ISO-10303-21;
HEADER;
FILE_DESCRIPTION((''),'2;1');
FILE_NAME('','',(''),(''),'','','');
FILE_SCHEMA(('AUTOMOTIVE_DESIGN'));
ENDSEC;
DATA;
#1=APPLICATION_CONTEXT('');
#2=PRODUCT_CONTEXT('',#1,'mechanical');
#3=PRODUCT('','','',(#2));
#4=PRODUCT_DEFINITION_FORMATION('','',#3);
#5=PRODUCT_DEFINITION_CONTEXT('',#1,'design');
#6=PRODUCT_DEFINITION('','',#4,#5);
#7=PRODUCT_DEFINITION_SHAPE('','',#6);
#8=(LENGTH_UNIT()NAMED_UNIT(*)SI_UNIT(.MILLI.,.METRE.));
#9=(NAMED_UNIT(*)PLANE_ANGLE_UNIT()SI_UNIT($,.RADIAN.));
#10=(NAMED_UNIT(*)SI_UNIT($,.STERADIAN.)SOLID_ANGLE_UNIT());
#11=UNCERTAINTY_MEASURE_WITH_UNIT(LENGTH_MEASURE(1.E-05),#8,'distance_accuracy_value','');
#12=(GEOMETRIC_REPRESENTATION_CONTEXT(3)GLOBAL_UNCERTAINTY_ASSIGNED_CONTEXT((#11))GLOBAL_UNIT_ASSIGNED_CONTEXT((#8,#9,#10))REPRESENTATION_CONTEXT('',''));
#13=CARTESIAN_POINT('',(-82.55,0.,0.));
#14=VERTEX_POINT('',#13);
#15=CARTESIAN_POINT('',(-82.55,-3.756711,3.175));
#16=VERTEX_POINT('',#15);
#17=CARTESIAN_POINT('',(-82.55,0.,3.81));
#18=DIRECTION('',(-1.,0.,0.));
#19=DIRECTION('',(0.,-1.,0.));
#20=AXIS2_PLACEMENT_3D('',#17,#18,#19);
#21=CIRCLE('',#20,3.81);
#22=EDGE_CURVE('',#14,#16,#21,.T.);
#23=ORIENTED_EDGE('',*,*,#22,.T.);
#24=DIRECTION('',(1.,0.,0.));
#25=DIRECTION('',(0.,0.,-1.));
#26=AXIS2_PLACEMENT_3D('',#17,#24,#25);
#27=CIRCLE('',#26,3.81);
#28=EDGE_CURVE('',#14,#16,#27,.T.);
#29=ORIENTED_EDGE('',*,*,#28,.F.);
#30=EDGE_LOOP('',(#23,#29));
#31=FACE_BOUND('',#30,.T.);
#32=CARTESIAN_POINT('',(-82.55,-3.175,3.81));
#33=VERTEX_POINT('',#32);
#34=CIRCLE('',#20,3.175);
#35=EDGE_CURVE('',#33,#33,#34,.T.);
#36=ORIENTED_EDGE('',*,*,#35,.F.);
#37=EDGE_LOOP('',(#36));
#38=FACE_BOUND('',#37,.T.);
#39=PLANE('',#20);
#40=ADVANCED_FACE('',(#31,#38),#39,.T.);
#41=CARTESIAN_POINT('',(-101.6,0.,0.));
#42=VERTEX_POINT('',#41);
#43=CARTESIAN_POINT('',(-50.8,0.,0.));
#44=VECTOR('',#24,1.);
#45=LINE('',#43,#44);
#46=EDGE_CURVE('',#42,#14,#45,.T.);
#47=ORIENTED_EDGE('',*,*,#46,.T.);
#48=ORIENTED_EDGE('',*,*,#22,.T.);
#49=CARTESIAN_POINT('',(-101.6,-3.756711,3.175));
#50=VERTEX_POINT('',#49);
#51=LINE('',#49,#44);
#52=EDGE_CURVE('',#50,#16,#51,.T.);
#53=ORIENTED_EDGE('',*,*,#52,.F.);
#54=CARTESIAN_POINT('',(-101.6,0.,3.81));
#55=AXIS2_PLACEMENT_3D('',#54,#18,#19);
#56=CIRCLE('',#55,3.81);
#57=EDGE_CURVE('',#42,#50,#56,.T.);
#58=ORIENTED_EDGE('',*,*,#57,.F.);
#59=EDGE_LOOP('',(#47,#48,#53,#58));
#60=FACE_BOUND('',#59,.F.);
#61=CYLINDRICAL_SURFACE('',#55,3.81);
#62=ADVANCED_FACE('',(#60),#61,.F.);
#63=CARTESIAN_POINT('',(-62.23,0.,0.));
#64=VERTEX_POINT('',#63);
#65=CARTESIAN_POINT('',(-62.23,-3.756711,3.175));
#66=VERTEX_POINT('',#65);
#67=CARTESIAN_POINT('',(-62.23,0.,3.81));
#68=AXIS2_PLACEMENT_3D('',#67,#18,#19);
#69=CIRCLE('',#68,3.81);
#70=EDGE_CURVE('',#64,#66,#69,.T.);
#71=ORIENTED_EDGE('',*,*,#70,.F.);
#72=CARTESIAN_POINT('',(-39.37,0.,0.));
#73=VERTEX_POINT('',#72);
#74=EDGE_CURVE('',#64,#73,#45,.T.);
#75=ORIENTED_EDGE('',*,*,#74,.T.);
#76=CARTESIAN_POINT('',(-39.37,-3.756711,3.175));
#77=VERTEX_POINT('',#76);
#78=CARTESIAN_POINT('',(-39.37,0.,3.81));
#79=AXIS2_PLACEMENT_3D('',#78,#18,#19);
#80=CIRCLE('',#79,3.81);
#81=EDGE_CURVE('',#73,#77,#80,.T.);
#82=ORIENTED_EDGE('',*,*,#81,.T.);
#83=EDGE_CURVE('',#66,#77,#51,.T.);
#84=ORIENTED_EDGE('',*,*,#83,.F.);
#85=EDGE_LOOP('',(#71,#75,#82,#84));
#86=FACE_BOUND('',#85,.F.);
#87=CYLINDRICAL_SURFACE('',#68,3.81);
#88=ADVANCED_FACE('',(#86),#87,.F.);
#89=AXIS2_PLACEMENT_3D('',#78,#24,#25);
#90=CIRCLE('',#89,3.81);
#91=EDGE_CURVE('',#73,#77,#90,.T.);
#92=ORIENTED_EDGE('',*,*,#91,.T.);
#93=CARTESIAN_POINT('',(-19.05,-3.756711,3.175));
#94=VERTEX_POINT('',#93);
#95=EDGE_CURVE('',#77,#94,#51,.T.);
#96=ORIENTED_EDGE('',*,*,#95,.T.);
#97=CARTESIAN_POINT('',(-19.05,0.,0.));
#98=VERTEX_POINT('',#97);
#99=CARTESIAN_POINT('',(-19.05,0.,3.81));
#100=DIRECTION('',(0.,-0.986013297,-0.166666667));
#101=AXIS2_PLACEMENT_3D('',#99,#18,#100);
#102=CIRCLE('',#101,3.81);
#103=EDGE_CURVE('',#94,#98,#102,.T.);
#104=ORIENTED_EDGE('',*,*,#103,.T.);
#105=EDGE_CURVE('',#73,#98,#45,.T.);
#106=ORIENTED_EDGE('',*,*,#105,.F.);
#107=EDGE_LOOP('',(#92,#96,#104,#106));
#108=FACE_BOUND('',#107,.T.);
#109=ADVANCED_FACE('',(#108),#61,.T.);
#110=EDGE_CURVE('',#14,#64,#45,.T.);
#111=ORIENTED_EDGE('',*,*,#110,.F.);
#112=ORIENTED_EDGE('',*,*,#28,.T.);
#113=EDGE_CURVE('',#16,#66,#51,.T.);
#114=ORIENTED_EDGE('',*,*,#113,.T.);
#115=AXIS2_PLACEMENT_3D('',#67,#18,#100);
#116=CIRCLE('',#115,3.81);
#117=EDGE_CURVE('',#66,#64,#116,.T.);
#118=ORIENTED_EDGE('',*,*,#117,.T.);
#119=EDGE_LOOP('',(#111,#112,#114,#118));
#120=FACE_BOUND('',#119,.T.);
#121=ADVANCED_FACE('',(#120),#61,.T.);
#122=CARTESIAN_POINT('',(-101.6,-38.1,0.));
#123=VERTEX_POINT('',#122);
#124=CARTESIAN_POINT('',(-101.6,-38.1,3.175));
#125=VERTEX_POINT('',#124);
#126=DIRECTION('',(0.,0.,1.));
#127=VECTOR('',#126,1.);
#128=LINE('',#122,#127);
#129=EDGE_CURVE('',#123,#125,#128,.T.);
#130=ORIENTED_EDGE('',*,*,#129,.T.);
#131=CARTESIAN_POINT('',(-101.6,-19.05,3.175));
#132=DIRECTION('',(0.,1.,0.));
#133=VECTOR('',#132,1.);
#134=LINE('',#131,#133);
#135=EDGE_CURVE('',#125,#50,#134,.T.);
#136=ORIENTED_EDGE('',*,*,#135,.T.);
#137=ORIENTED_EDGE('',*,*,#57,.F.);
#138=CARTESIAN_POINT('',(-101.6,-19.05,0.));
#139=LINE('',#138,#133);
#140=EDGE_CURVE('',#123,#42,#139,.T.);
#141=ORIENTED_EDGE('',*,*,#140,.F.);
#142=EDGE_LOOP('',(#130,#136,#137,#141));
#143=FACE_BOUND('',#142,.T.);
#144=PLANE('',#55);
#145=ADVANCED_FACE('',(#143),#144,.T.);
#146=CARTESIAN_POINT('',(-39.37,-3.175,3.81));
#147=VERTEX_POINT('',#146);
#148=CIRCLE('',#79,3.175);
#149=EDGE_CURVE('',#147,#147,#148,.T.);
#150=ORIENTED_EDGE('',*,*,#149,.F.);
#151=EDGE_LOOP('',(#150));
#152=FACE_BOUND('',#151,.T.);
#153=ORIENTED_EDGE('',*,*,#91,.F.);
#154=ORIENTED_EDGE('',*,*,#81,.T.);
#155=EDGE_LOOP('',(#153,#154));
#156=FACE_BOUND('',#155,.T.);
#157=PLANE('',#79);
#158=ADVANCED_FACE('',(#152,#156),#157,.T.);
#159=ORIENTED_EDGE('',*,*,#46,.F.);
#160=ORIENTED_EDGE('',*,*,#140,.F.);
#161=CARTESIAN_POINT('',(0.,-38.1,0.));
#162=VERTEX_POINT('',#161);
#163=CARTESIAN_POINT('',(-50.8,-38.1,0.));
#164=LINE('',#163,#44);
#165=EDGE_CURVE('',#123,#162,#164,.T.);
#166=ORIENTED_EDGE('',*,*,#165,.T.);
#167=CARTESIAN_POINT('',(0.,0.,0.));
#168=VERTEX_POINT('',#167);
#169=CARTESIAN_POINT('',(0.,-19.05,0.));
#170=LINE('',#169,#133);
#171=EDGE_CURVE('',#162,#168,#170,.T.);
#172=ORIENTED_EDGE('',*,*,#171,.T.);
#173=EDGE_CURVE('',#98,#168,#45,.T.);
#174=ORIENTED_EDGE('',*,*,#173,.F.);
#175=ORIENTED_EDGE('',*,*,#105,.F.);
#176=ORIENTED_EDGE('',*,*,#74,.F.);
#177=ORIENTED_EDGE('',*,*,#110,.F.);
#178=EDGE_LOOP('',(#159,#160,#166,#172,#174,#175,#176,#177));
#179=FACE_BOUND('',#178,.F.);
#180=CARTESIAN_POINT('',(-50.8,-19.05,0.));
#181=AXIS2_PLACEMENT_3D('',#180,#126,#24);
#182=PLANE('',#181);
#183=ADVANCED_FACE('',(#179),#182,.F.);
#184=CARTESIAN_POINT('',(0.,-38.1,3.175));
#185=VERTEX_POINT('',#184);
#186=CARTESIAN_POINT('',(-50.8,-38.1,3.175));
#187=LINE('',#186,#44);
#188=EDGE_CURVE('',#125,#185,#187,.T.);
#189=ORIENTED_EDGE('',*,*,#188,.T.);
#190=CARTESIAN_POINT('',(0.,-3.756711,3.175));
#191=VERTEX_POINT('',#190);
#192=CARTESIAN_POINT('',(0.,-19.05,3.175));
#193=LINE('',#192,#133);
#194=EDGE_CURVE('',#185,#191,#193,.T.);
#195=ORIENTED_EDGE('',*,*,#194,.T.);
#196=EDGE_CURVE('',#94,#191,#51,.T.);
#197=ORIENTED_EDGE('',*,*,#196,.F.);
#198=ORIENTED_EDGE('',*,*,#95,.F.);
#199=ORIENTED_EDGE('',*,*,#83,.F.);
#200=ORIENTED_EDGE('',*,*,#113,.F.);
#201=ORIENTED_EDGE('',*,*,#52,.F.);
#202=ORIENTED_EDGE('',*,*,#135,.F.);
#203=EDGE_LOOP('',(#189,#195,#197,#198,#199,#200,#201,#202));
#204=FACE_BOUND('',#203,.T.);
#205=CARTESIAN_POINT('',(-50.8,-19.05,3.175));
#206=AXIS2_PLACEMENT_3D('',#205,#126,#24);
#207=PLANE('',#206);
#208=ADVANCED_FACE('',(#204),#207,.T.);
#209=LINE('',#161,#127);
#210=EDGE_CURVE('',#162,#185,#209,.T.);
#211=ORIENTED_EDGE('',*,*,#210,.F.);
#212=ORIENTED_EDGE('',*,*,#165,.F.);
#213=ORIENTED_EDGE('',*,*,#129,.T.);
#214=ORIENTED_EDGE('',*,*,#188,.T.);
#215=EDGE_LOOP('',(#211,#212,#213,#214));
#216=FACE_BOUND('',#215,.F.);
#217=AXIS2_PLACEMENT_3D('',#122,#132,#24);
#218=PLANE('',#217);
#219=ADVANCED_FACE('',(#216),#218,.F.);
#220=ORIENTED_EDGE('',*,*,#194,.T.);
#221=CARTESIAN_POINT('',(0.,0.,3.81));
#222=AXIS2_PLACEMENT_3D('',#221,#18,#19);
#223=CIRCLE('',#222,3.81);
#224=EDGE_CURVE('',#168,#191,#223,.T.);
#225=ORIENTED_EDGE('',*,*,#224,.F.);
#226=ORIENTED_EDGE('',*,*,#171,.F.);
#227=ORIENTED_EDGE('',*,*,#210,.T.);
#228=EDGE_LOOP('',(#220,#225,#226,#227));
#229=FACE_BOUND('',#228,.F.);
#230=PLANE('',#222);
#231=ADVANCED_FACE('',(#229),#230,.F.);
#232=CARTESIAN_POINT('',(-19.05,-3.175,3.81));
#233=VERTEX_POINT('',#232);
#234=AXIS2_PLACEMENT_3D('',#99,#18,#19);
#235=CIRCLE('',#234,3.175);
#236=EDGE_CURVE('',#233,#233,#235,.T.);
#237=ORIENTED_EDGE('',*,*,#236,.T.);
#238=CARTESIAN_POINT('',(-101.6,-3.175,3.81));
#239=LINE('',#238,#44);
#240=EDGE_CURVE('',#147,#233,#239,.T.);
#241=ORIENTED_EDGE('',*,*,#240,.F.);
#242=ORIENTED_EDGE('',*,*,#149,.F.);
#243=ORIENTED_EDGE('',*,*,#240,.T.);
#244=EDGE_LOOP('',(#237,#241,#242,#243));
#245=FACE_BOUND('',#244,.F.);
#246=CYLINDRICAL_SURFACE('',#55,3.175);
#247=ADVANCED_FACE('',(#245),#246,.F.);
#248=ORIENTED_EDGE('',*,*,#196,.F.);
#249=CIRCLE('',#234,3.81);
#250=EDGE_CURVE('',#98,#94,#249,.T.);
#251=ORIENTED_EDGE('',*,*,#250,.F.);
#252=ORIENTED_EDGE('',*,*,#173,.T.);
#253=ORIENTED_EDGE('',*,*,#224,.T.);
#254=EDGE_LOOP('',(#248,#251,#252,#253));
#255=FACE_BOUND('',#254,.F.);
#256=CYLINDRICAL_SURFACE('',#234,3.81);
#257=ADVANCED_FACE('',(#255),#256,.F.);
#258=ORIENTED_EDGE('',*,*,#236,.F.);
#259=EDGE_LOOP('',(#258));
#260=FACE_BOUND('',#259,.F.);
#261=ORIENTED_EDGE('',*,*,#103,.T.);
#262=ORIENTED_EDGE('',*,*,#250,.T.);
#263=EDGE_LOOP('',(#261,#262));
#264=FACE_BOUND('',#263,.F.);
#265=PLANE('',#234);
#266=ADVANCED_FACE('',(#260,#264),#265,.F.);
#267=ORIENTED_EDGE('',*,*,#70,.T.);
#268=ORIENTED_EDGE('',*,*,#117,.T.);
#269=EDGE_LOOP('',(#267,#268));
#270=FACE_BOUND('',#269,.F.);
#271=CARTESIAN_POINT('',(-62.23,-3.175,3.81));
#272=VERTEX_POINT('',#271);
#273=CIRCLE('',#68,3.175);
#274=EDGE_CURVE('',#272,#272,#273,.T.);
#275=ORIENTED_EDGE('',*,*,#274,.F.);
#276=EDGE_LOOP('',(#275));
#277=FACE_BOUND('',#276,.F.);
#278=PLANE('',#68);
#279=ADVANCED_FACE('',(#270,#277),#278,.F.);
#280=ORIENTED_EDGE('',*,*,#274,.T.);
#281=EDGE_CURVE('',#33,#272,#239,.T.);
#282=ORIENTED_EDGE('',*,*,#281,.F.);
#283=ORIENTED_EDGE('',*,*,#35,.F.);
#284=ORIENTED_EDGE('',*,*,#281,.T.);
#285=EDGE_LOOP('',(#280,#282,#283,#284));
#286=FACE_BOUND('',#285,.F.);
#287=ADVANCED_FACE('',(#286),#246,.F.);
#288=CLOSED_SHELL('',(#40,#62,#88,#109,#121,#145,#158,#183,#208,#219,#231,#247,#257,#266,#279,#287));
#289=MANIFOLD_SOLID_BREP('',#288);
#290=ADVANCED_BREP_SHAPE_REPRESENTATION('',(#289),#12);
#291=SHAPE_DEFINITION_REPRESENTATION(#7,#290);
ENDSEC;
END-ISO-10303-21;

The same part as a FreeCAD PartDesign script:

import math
import FreeCAD as App
import Part
import Sketcher

V = App.Vector
Q = App.Units.Quantity


def add_polygon(sketch, points):
    """Adds a closed chain of lines whose ends are joined by coincident constraints."""
    first, n = sketch.GeometryCount, len(points)
    for a, b in zip(points, points[1:] + points[:1]):
        sketch.addGeometry(Part.LineSegment(App.Vector(*a, 0), App.Vector(*b, 0)), False)
    for i in range(n):
        sketch.addConstraint(Sketcher.Constraint("Coincident", first + i, 2, first + (i + 1) % n, 1))

doc = App.newDocument("Part")
params = doc.addObject("Spreadsheet::Sheet", "Params")
for row, (alias, value) in enumerate([
    ("sketch1_width", "4 in"),
    ("sketch1_height", "1.5 in"),
    ("pad1_length", "0.125 in"),
    ("sketch2_radius", "0.15 in"),
    ("sketch2_height", "0.1 in"),
    ("sketch2_radius2", "0.125 in"),
    ("pocket1_length", "10 in"),
    ("sketch3_diameter", "0.3 in"),
    ("sketch3_diameter2", "0.25 in"),
    ("pad2_length", "4 in"),
    ("sketch4_diameter", "0.3 in"),
    ("sketch4_diameter2", "0.25 in"),
    ("pocket2_length", "0.75 in"),
    ("sketch5_diameter", "0.3 in"),
    ("sketch5_diameter2", "0.25 in"),
    ("pocket3_length", "0.9 in"),
    ("sketch6_diameter", "0.3 in"),
    ("sketch6_diameter2", "0.25 in"),
    ("pocket4_length", "0.75 in"),
], start=1):
    params.set(f"A{row}", alias)
    params.set(f"B{row}", "=" + value)
    params.setAlias(f"B{row}", alias)

body = doc.addObject("PartDesign::Body", "Body")

# Sketch on XY plane
sketch1 = body.newObject("Sketcher::SketchObject", "Sketch")
sketch1.AttachmentSupport = (doc.getObject("XY_Plane"), [""])
sketch1.MapMode = "FlatFace"
add_polygon(sketch1, [(-101.6, 0), (-101.6, -38.1), (0, -38.1), (0, 0)])  # lines 0-3
sketch1.addConstraint([
    Sketcher.Constraint("Vertical", 0),
    Sketcher.Constraint("Horizontal", 1),
    Sketcher.Constraint("Vertical", 2),
    Sketcher.Constraint("Horizontal", 3),
    Sketcher.Constraint("Coincident", 2, 2, -1, 1),
    Sketcher.Constraint("DistanceX", 1, 1, 1, 2, Q("4 in")),
    Sketcher.Constraint("DistanceY", 0, 2, 0, 1, Q("1.5 in")),
])
sketch1.setExpression("Constraints[9]", "Params.sketch1_width")
sketch1.setExpression("Constraints[10]", "Params.sketch1_height")
pad1 = body.newObject("PartDesign::Pad", "Pad")
pad1.Profile = sketch1
pad1.setExpression("Length", "Params.pad1_length")

# Sketch on YZ plane
sketch2 = body.newObject("Sketcher::SketchObject", "Sketch001")
sketch2.AttachmentSupport = (doc.getObject("YZ_Plane"), [""])
sketch2.MapMode = "FlatFace"
sketch2.AttachmentOffset = App.Placement(V(0, 0, -4 * 25.4), App.Rotation())
sketch2.addGeometry([
    Part.ArcOfCircle(Part.Circle(V(0, 3.81, 0), V(0, 0, 1), 3.81), math.radians(-180), math.radians(-170.405932)),  # 0
    Part.ArcOfCircle(Part.Circle(V(0, 3.81, 0), V(0, 0, 1), 3.81), math.radians(-90), math.radians(180)),  # 1
    Part.ArcOfCircle(Part.Circle(V(0, 3.81, 0), V(0, 0, 1), 3.81), math.radians(-170.405932), math.radians(-90)),  # 2
    Part.ArcOfCircle(Part.Circle(V(0, 3.81, 0), V(0, 0, 1), 3.175), math.radians(-90), math.radians(180)),  # 3
    Part.ArcOfCircle(Part.Circle(V(0, 3.81, 0), V(0, 0, 1), 3.175), math.radians(180), math.radians(191.536959)),  # 4
    Part.LineSegment(V(-3.110852, 3.175, 0), V(0, 3.175, 0)),  # 5
    Part.LineSegment(V(0, 3.175, 0), V(0, 0.635, 0)),  # 6
], False)
sketch2.addConstraint([
    Sketcher.Constraint("Tangent", 0, 1, 1, 2),
    Sketcher.Constraint("Tangent", 1, 1, 2, 2),
    Sketcher.Constraint("Tangent", 2, 1, 0, 2),
    Sketcher.Constraint("Tangent", 3, 2, 4, 1),
    Sketcher.Constraint("Coincident", 4, 2, 5, 1),
    Sketcher.Constraint("Coincident", 5, 2, 6, 1),
    Sketcher.Constraint("Coincident", 6, 2, 3, 1),
    Sketcher.Constraint("Horizontal", 5),
    Sketcher.Constraint("Vertical", 6),
    Sketcher.Constraint("Coincident", 1, 1, -1, 1),
    Sketcher.Constraint("Coincident", 3, 3, 0, 3),
    Sketcher.Constraint("Equal", 3, 4),
    Sketcher.Constraint("PointOnObject", 0, 3, -2),
    Sketcher.Constraint("PointOnObject", 5, 2, -2),
    Sketcher.Constraint("Horizontal", 4, 3, 0, 1),
    Sketcher.Constraint("Horizontal", 0, 1, 3, 2),
    Sketcher.Constraint("Horizontal", 2, 1, 4, 2),
    Sketcher.Constraint("Radius", 0, Q("0.15 in")),
    Sketcher.Constraint("DistanceY", 6, 2, 6, 1, Q("0.1 in")),
    Sketcher.Constraint("Radius", 3, Q("0.125 in")),
])
sketch2.setExpression("Constraints[17]", "Params.sketch2_radius")
sketch2.setExpression("Constraints[18]", "Params.sketch2_height")
sketch2.setExpression("Constraints[19]", "Params.sketch2_radius2")
pocket1 = body.newObject("PartDesign::Pocket", "Pocket")
pocket1.Profile = sketch2
pocket1.setExpression("Length", "Params.pocket1_length")
pocket1.Reversed = True

# Sketch on YZ plane
sketch3 = body.newObject("Sketcher::SketchObject", "Sketch002")
sketch3.AttachmentSupport = (doc.getObject("YZ_Plane"), [""])
sketch3.MapMode = "FlatFace"
sketch3.AttachmentOffset = App.Placement(V(0, 0, -4 * 25.4), App.Rotation())
sketch3.addGeometry([
    Part.Circle(V(0, 3.81, 0), V(0, 0, 1), 3.81),
    Part.Circle(V(0, 3.81, 0), V(0, 0, 1), 3.175),
], False)
sketch3.addConstraint([
    Sketcher.Constraint("Coincident", 1, 3, 0, 3),
    Sketcher.Constraint("PointOnObject", 0, 3, -2),
    Sketcher.Constraint("Diameter", 0, Q("0.3 in")),
    Sketcher.Constraint("Diameter", 1, Q("0.25 in")),
    Sketcher.Constraint("DistanceY", -1, 1, 0, 3, Q("0.15 in")),
])
sketch3.setExpression("Constraints[2]", "Params.sketch3_diameter")
sketch3.setExpression("Constraints[3]", "Params.sketch3_diameter2")
pad2 = body.newObject("PartDesign::Pad", "Pad001")
pad2.Profile = sketch3
pad2.setExpression("Length", "Params.pad2_length")

# Sketch on YZ plane
sketch4 = body.newObject("Sketcher::SketchObject", "Sketch003")
sketch4.AttachmentSupport = (doc.getObject("YZ_Plane"), [""])
sketch4.MapMode = "FlatFace"
sketch4.AttachmentOffset = App.Placement(V(0, 0, -4 * 25.4), App.Rotation())
sketch4.addGeometry([
    Part.Circle(V(0, 3.81, 0), V(0, 0, 1), 3.81),
    Part.Circle(V(0, 3.81, 0), V(0, 0, 1), 3.175),
], False)
sketch4.addConstraint([
    Sketcher.Constraint("Coincident", 1, 3, 0, 3),
    Sketcher.Constraint("PointOnObject", 0, 3, -2),
    Sketcher.Constraint("Diameter", 0, Q("0.3 in")),
    Sketcher.Constraint("Diameter", 1, Q("0.25 in")),
    Sketcher.Constraint("DistanceY", -1, 1, 0, 3, Q("0.15 in")),
])
sketch4.setExpression("Constraints[2]", "Params.sketch4_diameter")
sketch4.setExpression("Constraints[3]", "Params.sketch4_diameter2")
pocket2 = body.newObject("PartDesign::Pocket", "Pocket001")
pocket2.Profile = sketch4
pocket2.setExpression("Length", "Params.pocket2_length")
pocket2.Reversed = True

# Sketch on YZ plane
sketch5 = body.newObject("Sketcher::SketchObject", "Sketch004")
sketch5.AttachmentSupport = (doc.getObject("YZ_Plane"), [""])
sketch5.MapMode = "FlatFace"
sketch5.AttachmentOffset = App.Placement(V(0, 0, -2.45 * 25.4), App.Rotation())
sketch5.addGeometry([
    Part.Circle(V(0, 3.81, 0), V(0, 0, 1), 3.81),
    Part.Circle(V(0, 3.81, 0), V(0, 0, 1), 3.175),
], False)
sketch5.addConstraint([
    Sketcher.Constraint("Coincident", 1, 3, 0, 3),
    Sketcher.Constraint("PointOnObject", 0, 3, -2),
    Sketcher.Constraint("Diameter", 0, Q("0.3 in")),
    Sketcher.Constraint("Diameter", 1, Q("0.25 in")),
    Sketcher.Constraint("DistanceY", -1, 1, 0, 3, Q("0.15 in")),
])
sketch5.setExpression("Constraints[2]", "Params.sketch5_diameter")
sketch5.setExpression("Constraints[3]", "Params.sketch5_diameter2")
pocket3 = body.newObject("PartDesign::Pocket", "Pocket002")
pocket3.Profile = sketch5
pocket3.setExpression("Length", "Params.pocket3_length")
pocket3.Reversed = True

# Sketch on YZ plane
sketch6 = body.newObject("Sketcher::SketchObject", "Sketch005")
sketch6.AttachmentSupport = (doc.getObject("YZ_Plane"), [""])
sketch6.MapMode = "FlatFace"
sketch6.AttachmentOffset = App.Placement(V(0, 0, -0.75 * 25.4), App.Rotation())
sketch6.addGeometry([
    Part.Circle(V(0, 3.81, 0), V(0, 0, 1), 3.81),
    Part.Circle(V(0, 3.81, 0), V(0, 0, 1), 3.175),
], False)
sketch6.addConstraint([
    Sketcher.Constraint("Coincident", 1, 3, 0, 3),
    Sketcher.Constraint("PointOnObject", 0, 3, -2),
    Sketcher.Constraint("Diameter", 0, Q("0.3 in")),
    Sketcher.Constraint("Diameter", 1, Q("0.25 in")),
    Sketcher.Constraint("DistanceY", -1, 1, 0, 3, Q("0.15 in")),
])
sketch6.setExpression("Constraints[2]", "Params.sketch6_diameter")
sketch6.setExpression("Constraints[3]", "Params.sketch6_diameter2")
pocket4 = body.newObject("PartDesign::Pocket", "Pocket003")
pocket4.Profile = sketch6
pocket4.setExpression("Length", "Params.pocket4_length")
pocket4.Reversed = True

doc.recompute()
